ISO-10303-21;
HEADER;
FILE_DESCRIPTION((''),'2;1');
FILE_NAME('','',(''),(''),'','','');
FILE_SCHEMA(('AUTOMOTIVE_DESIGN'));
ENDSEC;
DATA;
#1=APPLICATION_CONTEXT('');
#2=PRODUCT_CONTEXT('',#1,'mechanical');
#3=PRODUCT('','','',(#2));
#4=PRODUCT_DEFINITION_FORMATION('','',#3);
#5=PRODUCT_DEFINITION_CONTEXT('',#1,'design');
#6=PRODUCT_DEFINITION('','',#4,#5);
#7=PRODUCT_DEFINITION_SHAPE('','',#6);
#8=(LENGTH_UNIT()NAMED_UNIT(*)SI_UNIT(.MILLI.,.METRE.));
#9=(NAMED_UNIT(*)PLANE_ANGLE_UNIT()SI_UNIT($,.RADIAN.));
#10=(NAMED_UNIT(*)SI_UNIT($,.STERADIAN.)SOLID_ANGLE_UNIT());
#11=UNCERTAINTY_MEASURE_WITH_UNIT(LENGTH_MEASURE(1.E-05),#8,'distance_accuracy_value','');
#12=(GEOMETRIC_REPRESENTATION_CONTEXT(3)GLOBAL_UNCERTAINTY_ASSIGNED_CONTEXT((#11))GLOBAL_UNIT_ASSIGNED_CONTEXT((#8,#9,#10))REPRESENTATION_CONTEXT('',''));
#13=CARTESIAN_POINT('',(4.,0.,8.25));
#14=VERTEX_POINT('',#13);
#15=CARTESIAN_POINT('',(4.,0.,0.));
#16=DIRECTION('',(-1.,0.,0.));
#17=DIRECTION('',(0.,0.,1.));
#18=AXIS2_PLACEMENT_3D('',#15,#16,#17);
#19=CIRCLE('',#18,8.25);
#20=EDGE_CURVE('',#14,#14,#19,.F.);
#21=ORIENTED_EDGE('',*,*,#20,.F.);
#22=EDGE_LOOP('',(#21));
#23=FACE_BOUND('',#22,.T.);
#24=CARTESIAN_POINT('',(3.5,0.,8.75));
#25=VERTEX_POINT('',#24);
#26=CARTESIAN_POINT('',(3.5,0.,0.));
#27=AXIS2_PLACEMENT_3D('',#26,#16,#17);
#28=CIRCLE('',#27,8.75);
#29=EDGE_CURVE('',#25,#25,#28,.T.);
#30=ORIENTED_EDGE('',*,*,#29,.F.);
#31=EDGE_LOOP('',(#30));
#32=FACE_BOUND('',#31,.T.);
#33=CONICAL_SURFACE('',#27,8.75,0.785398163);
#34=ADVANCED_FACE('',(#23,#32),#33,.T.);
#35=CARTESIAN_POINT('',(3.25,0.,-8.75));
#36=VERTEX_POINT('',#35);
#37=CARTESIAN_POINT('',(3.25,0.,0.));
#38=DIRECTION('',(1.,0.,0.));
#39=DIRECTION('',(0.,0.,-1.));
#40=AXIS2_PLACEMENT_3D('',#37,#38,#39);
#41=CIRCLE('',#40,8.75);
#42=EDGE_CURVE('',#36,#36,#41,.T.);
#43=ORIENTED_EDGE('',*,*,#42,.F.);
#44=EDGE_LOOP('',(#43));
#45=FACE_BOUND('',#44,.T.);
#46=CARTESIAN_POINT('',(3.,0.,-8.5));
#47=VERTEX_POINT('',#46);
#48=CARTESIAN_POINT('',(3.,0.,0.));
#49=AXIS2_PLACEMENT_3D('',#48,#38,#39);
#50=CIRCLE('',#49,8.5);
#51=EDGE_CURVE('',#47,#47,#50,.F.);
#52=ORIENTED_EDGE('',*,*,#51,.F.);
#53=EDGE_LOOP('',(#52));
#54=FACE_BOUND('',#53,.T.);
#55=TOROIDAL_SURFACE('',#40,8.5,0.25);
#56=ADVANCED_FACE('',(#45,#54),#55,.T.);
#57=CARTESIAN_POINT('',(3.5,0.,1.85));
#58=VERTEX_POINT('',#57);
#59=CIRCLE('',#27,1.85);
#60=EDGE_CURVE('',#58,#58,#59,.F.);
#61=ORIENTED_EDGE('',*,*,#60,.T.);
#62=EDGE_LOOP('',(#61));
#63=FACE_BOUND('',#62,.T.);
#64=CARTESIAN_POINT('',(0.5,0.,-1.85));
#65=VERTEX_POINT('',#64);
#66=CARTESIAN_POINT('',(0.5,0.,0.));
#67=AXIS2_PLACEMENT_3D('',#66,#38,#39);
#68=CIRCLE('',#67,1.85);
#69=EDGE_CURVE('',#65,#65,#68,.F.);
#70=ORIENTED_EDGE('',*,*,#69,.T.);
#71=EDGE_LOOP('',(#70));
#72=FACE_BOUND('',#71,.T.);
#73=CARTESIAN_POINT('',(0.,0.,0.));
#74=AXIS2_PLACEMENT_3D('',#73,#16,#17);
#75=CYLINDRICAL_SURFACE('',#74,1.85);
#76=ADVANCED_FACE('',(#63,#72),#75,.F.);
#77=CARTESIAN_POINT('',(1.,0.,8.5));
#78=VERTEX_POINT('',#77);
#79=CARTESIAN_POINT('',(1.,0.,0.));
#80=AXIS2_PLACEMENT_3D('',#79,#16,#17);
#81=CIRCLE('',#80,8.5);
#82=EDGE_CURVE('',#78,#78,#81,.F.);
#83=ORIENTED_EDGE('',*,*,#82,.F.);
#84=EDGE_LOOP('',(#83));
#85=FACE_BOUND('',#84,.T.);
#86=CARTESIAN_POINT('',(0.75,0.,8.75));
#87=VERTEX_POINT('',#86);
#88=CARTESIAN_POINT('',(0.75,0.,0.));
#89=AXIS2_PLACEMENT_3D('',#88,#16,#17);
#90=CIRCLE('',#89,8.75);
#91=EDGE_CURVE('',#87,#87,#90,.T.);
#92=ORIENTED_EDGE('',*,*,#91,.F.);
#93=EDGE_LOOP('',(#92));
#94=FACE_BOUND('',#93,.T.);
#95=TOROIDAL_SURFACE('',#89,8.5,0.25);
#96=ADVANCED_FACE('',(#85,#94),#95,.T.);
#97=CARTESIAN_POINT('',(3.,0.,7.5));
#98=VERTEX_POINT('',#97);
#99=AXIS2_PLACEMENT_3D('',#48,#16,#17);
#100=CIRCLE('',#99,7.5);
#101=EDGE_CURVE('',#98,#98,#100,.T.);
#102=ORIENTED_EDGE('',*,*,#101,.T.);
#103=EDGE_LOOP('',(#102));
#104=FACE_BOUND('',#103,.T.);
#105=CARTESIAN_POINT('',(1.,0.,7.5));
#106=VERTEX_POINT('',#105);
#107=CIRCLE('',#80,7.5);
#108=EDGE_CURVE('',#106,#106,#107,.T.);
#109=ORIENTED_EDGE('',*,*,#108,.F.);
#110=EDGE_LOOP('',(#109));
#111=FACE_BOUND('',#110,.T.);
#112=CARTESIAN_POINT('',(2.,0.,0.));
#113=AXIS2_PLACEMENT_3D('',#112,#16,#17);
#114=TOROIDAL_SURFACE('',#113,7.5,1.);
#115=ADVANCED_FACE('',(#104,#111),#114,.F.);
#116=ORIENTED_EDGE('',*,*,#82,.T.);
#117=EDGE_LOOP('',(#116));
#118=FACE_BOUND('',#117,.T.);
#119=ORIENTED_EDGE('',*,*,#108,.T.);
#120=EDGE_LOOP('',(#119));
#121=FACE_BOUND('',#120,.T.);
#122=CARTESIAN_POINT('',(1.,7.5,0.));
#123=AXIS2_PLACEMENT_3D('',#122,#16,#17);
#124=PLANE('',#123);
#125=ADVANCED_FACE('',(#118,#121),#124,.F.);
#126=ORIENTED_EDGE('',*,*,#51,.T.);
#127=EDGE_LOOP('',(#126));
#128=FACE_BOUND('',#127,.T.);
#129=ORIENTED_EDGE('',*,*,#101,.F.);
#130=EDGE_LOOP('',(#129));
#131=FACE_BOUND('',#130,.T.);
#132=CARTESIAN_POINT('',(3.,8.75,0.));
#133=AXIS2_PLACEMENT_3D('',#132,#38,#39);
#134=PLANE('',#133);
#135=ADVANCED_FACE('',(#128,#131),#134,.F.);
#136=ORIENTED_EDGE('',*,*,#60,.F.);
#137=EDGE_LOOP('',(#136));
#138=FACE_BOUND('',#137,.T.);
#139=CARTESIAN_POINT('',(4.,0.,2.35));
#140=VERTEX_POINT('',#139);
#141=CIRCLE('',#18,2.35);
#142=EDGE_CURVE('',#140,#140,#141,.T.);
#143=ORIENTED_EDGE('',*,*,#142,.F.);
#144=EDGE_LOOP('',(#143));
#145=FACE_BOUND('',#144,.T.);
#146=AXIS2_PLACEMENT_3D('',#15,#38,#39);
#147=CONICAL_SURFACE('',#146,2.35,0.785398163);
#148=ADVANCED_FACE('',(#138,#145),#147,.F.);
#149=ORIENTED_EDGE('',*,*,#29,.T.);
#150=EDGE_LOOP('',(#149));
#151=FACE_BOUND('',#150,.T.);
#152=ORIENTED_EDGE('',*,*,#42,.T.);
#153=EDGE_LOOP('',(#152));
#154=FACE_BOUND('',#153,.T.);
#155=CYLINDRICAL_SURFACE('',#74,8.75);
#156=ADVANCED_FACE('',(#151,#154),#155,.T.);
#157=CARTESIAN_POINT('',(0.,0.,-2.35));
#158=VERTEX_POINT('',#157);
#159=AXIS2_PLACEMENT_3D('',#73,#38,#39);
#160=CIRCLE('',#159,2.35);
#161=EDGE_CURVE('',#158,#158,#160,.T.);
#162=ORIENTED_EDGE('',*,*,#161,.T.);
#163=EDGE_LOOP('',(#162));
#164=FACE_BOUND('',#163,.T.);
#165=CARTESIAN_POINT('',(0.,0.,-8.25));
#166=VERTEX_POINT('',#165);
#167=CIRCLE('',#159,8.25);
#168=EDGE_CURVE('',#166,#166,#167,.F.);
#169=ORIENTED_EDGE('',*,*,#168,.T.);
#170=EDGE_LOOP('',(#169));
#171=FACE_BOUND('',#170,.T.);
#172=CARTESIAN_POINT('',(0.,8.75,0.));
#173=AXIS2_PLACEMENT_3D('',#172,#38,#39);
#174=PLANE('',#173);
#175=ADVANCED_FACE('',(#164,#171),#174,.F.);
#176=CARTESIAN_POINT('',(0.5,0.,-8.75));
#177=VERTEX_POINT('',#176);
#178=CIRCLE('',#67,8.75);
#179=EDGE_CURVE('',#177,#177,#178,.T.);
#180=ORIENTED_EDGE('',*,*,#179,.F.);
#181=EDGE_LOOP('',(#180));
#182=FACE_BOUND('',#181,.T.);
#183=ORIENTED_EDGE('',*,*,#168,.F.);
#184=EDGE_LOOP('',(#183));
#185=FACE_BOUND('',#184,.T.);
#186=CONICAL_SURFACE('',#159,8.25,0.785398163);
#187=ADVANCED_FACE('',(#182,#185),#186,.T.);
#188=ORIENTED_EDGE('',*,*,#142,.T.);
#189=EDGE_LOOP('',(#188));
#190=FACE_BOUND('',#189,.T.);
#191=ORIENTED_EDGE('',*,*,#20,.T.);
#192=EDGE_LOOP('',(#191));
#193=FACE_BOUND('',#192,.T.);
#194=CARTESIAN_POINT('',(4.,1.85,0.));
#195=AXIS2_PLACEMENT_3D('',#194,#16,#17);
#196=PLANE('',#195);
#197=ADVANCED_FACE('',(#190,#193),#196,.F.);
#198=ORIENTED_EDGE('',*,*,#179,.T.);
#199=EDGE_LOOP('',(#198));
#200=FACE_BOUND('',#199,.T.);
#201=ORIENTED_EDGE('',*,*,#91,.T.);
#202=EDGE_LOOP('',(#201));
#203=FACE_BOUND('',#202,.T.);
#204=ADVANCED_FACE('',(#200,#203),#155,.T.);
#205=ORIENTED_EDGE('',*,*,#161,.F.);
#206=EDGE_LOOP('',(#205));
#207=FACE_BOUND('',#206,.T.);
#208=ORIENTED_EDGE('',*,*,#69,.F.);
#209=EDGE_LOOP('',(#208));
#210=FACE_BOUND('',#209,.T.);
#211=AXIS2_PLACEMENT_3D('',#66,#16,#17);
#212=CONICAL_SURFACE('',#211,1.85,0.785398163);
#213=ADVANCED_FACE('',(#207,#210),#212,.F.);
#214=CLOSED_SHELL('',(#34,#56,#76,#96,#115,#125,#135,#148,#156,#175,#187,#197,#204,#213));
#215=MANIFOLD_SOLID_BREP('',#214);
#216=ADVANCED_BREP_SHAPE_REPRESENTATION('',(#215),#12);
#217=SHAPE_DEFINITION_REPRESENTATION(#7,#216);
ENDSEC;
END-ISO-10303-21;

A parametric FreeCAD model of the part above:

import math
import FreeCAD as App
import Part
import Sketcher

V = App.Vector


def edges_at(feature, points):
    """Names of the edges that pass closest to the given points."""
    edges = feature.Shape.Edges
    near = lambda p: min(range(len(edges)), key=lambda i: edges[i].distToShape(Part.Vertex(*p))[0])
    return sorted({f"Edge{near(p) + 1}" for p in points})

doc = App.newDocument("Part")
body = doc.addObject("PartDesign::Body", "Body")

# Sketch on XY plane
sketch1 = body.newObject("Sketcher::SketchObject", "Sketch")
sketch1.AttachmentSupport = (doc.getObject("XY_Plane"), [""])
sketch1.MapMode = "FlatFace"
sketch1.addGeometry([
    Part.LineSegment(V(0, 8.8, 0), V(0, 1.9, 0)),  # 0
    Part.LineSegment(V(0, 1.9, 0), V(4, 1.9, 0)),  # 1
    Part.LineSegment(V(4, 1.9, 0), V(4, 8.8, 0)),  # 2
    Part.LineSegment(V(4, 8.8, 0), V(3, 8.8, 0)),  # 3
    Part.LineSegment(V(3, 8.8, 0), V(3, 7.5, 0)),  # 4
    Part.ArcOfCircle(Part.Circle(V(2, 7.5, 0), V(0, 0, 1), 1), math.radians(180), math.radians(360)),  # 5
    Part.LineSegment(V(1, 7.5, 0), V(1, 8.8, 0)),  # 6
    Part.LineSegment(V(1, 8.8, 0), V(0, 8.8, 0)),  # 7
], False)
sketch1.addConstraint([
    Sketcher.Constraint("Coincident", 0, 2, 1, 1),
    Sketcher.Constraint("Coincident", 1, 2, 2, 1),
    Sketcher.Constraint("Coincident", 2, 2, 3, 1),
    Sketcher.Constraint("Coincident", 3, 2, 4, 1),
    Sketcher.Constraint("Tangent", 4, 2, 5, 2),
    Sketcher.Constraint("Tangent", 5, 1, 6, 1),
    Sketcher.Constraint("Coincident", 6, 2, 7, 1),
    Sketcher.Constraint("Coincident", 7, 2, 0, 1),
    Sketcher.Constraint("Vertical", 0),
    Sketcher.Constraint("Horizontal", 1),
    Sketcher.Constraint("Vertical", 2),
    Sketcher.Constraint("Horizontal", 3),
    Sketcher.Constraint("Vertical", 4),
    Sketcher.Constraint("Vertical", 6),
    Sketcher.Constraint("Horizontal", 7),
    Sketcher.Constraint("PointOnObject", 0, 2, -2),
    Sketcher.Constraint("Horizontal", 3, 2, 6, 2),
    Sketcher.Constraint("Equal", 3, 7),
    Sketcher.Constraint("Radius", 5, 1.0),
    Sketcher.Constraint("DistanceX", 1, 1, 1, 2, 4.0),
    Sketcher.Constraint("DistanceY", 0, 2, 0, 1, 6.9),
    Sketcher.Constraint("DistanceY", 4, 2, 4, 1, 1.25),
    Sketcher.Constraint("DistanceY", -1, 1, 5, 3, 7.5),
])
revolution = body.newObject("PartDesign::Revolution", "Revolution")
revolution.Profile = sketch1
revolution.ReferenceAxis = (sketch1, ["H_Axis"])
revolution.Angle = 360
doc.recompute()

fillet = body.newObject("PartDesign::Fillet", "Fillet")
fillet.Base = (revolution, edges_at(revolution, [(1, 0, -8.75), (3, 0, -8.75)]))
fillet.Radius = 0.25
doc.recompute()

chamfer = body.newObject("PartDesign::Chamfer", "Chamfer")
chamfer.Base = (fillet, edges_at(fillet, [
    (0, 0, -8.75),
    (4, 0, -8.75),
    (4, 0, -1.85),
    (0, 0, -1.85),
]))
chamfer.Size = 0.5

doc.recompute()
